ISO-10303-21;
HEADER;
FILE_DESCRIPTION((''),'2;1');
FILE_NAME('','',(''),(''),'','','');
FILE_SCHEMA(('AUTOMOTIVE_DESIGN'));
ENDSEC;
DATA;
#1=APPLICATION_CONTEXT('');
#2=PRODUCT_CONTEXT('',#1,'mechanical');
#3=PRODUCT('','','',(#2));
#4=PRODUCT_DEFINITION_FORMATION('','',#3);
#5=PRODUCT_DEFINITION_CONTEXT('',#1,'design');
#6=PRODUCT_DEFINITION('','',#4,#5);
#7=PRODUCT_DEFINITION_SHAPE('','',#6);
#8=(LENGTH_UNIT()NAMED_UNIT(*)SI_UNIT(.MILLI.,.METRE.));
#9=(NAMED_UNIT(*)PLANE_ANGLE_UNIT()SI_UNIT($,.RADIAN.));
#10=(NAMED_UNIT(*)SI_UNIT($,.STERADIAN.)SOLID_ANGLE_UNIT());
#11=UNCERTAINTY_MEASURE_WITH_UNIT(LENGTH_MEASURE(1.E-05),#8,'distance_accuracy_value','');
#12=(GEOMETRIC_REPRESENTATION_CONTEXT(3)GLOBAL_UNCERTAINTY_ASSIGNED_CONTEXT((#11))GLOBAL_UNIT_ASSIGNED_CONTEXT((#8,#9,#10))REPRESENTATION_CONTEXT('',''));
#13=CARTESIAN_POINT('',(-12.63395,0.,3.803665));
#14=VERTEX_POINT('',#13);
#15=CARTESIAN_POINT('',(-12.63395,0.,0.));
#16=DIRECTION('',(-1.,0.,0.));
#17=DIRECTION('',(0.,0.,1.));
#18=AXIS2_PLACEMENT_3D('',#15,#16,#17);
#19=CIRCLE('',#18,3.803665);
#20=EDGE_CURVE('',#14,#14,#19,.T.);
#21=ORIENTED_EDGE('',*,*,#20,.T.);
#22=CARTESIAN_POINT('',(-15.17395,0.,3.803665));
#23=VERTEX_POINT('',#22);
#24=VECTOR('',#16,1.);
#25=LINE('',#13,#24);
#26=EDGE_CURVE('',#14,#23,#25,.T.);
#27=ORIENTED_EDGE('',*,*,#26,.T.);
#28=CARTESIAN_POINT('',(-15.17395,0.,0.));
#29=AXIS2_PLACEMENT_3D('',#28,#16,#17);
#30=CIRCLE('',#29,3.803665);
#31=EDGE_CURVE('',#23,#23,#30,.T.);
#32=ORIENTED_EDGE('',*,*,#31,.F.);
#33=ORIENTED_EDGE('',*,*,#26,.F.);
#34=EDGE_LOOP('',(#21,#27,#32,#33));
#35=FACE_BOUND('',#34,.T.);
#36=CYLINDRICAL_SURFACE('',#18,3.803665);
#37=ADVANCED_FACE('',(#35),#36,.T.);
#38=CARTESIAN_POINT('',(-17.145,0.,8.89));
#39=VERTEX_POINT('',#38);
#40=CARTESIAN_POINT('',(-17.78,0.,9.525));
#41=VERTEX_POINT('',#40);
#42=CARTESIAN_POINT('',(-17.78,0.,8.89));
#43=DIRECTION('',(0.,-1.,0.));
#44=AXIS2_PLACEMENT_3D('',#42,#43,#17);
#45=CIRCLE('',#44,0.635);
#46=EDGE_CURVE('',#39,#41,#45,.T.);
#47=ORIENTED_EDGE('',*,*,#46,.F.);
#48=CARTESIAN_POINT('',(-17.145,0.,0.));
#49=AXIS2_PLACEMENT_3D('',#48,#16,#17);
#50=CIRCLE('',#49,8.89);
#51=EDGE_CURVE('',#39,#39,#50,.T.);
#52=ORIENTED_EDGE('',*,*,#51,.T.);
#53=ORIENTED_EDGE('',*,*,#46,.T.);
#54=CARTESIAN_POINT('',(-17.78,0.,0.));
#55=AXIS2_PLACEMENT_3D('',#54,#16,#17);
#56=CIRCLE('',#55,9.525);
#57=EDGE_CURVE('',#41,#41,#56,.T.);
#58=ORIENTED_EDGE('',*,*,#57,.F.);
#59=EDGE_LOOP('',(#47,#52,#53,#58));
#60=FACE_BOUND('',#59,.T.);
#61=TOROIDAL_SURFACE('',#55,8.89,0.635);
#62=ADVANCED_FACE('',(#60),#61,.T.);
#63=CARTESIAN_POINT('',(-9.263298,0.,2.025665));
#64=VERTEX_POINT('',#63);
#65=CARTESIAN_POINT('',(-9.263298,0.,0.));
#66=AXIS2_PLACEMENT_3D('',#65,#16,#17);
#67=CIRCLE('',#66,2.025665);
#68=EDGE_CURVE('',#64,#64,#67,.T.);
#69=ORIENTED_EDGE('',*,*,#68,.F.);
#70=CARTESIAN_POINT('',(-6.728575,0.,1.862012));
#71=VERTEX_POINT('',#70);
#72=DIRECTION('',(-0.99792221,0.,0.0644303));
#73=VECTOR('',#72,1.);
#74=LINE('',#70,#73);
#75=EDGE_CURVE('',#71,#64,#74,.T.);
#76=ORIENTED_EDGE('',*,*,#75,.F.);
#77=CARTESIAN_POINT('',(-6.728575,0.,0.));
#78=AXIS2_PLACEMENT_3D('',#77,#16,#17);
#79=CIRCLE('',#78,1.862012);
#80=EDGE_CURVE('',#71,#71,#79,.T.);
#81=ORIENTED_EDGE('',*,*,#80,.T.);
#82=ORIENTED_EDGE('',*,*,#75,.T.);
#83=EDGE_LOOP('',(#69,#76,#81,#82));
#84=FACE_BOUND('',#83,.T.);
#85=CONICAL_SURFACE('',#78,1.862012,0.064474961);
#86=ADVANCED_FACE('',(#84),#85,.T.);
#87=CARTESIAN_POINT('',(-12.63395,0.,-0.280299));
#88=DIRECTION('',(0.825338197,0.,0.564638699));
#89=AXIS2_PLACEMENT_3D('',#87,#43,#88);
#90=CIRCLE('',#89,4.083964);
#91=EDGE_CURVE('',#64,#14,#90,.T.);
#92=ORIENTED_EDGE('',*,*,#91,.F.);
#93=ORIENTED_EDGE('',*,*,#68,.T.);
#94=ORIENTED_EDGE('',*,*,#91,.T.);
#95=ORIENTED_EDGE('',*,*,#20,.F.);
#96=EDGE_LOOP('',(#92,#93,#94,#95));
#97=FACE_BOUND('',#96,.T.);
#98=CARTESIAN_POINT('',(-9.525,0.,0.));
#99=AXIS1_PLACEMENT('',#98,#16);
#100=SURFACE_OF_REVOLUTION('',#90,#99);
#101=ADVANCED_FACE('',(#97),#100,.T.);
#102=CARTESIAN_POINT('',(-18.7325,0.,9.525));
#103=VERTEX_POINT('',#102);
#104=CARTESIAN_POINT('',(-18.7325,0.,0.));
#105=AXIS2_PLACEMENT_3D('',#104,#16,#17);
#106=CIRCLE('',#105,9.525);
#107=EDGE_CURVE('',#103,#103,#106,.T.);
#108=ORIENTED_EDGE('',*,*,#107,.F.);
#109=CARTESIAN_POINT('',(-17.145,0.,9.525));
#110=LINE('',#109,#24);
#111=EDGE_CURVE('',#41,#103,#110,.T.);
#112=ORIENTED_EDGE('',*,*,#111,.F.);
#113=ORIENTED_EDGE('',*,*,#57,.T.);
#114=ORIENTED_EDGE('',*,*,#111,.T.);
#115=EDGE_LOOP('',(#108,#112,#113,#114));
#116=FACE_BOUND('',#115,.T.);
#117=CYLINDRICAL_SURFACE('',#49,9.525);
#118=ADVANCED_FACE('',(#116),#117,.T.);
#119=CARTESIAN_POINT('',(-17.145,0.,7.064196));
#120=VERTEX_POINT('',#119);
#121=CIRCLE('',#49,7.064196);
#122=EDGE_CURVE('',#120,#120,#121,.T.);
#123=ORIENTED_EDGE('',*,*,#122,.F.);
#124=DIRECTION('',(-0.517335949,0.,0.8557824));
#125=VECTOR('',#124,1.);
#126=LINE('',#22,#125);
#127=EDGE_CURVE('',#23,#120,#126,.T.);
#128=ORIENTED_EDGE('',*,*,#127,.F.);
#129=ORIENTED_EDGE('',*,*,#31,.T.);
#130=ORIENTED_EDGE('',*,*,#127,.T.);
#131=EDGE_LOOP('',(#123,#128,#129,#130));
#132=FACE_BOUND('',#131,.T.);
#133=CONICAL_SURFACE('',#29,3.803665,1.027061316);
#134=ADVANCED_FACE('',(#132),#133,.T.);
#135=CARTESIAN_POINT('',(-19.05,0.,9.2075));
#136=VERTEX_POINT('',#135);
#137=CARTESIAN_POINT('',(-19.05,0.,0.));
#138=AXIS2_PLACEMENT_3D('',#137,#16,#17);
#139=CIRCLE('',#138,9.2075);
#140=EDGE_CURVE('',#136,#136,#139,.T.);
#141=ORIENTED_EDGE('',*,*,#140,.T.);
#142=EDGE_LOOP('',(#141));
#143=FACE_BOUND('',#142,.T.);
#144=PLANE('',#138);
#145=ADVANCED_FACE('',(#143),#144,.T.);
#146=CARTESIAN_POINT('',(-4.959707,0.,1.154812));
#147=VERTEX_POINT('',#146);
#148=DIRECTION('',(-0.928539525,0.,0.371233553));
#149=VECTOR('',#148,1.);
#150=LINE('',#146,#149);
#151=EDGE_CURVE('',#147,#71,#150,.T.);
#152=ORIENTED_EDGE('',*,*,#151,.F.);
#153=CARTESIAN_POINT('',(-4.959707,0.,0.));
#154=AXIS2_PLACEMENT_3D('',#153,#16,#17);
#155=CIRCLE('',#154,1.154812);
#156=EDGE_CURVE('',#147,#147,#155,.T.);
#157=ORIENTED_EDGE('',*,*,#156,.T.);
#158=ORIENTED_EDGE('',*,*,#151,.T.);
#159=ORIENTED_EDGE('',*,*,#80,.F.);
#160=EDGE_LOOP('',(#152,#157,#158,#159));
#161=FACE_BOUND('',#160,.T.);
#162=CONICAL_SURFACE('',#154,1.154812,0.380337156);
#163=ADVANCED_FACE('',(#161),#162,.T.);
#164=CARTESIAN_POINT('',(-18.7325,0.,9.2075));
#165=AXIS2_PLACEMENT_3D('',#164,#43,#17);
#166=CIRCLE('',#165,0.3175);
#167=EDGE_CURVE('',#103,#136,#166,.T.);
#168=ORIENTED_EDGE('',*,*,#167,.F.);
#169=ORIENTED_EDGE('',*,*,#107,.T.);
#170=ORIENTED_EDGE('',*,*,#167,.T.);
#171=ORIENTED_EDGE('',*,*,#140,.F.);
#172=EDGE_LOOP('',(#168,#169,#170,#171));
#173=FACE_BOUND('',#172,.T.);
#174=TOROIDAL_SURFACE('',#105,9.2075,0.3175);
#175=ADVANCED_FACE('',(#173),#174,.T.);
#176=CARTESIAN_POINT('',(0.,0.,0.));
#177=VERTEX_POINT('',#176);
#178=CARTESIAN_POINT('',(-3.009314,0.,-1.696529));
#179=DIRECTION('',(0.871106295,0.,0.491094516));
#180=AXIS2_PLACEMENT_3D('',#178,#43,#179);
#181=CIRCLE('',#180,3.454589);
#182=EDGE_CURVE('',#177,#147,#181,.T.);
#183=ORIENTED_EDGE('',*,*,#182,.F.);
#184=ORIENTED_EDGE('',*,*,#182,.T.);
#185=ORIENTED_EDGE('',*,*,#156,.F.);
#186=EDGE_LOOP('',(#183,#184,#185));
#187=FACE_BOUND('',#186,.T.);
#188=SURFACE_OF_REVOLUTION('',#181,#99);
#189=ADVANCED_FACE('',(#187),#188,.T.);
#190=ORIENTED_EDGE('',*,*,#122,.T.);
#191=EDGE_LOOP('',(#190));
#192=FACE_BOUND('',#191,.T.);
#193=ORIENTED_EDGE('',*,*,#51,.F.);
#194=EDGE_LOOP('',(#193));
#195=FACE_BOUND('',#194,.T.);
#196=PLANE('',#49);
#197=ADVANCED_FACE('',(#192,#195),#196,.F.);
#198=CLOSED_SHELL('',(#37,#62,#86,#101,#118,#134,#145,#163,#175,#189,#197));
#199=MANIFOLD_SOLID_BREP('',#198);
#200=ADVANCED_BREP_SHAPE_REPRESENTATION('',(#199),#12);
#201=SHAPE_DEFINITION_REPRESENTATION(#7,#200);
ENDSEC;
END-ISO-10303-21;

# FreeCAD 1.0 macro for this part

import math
import FreeCAD as App
import Part
import Sketcher
from FreeCAD import Vector
Q = App.Units.Quantity


def edges_at(feature, points):
    """Names of the edges that pass closest to the given points."""
    edges = feature.Shape.Edges
    near = lambda p: min(range(len(edges)), key=lambda i: edges[i].distToShape(Part.Vertex(*p))[0])
    return sorted({f"Edge{near(p) + 1}" for p in points})

doc = App.newDocument("Part")
params = doc.addObject("Spreadsheet::Sheet", "Params")
for row, (alias, value) in enumerate([
    ("sketch1_width", "0.1 in"),
    ("sketch1_length", "0.1 in"),
    ("sketch1_width2", "0.75 in"),
    ("sketch1_length2", "0.15 in"),
    ("sketch1_width3", "0.075 in"),
    ("revolution_angle", "360 deg"),
    ("fillet_radius", "0.025 in"),
    ("fillet2_radius", "0.0125 in"),
], start=1):
    params.set(f"A{row}", alias)
    params.set(f"B{row}", "=" + value)
    params.setAlias(f"B{row}", alias)

body = doc.addObject("PartDesign::Body", "Body")

# Sketch on XZ plane
sketch1 = doc.addObject("Sketcher::SketchObject", "Sketch")
body.addObject(sketch1)
sketch1.AttachmentSupport = (doc.XZ_Plane, [""])
sketch1.MapMode = "FlatFace"
sketch1.addGeometry([
    Part.LineSegment(Vector(-19.1, 0, 0), Vector(0, 0, 0)),  # 0
    Part.ArcOfCircle(Part.Circle(Vector(-3, -1.7, 0), Vector(0, 0, 1), 3.5), math.radians(29), math.radians(124)),  # 1
    Part.LineSegment(Vector(-5, 1.2, 0), Vector(-6.7, 1.9, 0)),  # 2
    Part.LineSegment(Vector(-6.7, 1.9, 0), Vector(-9.3, 2, 0)),  # 3
    Part.ArcOfCircle(Part.Circle(Vector(-12.6, -0.3, 0), Vector(0, 0, 1), 4.1), math.radians(34), math.radians(90)),  # 4
    Part.LineSegment(Vector(-12.6, 3.8, 0), Vector(-15.2, 3.8, 0)),  # 5
    Part.LineSegment(Vector(-15.2, 3.8, 0), Vector(-17.1, 7.1, 0)),  # 6
    Part.LineSegment(Vector(-17.1, 7.1, 0), Vector(-17.1, 9.5, 0)),  # 7
    Part.LineSegment(Vector(-17.1, 9.5, 0), Vector(-19.1, 9.5, 0)),  # 8
    Part.LineSegment(Vector(-19.1, 9.5, 0), Vector(-19.1, 0, 0)),  # 9
], False)
sketch1.addConstraint([
    Sketcher.Constraint("Coincident", 0, 2, 1, 1),
    Sketcher.Constraint("Coincident", 1, 2, 2, 1),
    Sketcher.Constraint("Coincident", 2, 2, 3, 1),
    Sketcher.Constraint("Coincident", 3, 2, 4, 1),
    Sketcher.Constraint("Tangent", 4, 2, 5, 1),
    Sketcher.Constraint("Coincident", 5, 2, 6, 1),
    Sketcher.Constraint("Coincident", 6, 2, 7, 1),
    Sketcher.Constraint("Coincident", 7, 2, 8, 1),
    Sketcher.Constraint("Coincident", 8, 2, 9, 1),
    Sketcher.Constraint("Coincident", 9, 2, 0, 1),
    Sketcher.Constraint("Horizontal", 0),
    Sketcher.Constraint("Horizontal", 5),
    Sketcher.Constraint("Vertical", 7),
    Sketcher.Constraint("Horizontal", 8),
    Sketcher.Constraint("Vertical", 9),
    Sketcher.Constraint("Coincident", 0, 2, -1, 1),
    Sketcher.Constraint("DistanceX", 5, 2, 5, 1, Q("0.1 in")),
    Sketcher.Constraint("Distance", 3, Q("0.1 in")),
    Sketcher.Constraint("DistanceX", 0, 1, 0, 2, Q("0.75 in")),
    Sketcher.Constraint("Distance", 6, Q("0.15 in")),
    Sketcher.Constraint("DistanceX", 8, 2, 8, 1, Q("0.075 in")),
    Sketcher.Constraint("DistanceY", 9, 2, 9, 1, Q("0.375 in")),
    Sketcher.Constraint("DistanceY", 3, 2, 4, 2, Q("0.07 in")),
    Sketcher.Constraint("Distance", 2, Q("0.075 in")),
    Sketcher.Constraint("Radius", 1, 3.454589),
    Sketcher.Constraint("Radius", 4, 4.083964),
    Sketcher.Constraint("DistanceY", 1, 3, 2, 2, Q("0.1401001 in")),
    Sketcher.Constraint("DistanceY", 4, 3, -1, 1, 0.280299),
    Sketcher.Constraint("DistanceX", 3, 2, -1, 1, 9.263298),
    Sketcher.Constraint("DistanceY", 1, 2, 2, 2, 0.7072),
])
sketch1.setExpression("Constraints[16]", "Params.sketch1_width")
sketch1.setExpression("Constraints[17]", "Params.sketch1_length")
sketch1.setExpression("Constraints[18]", "Params.sketch1_width2")
sketch1.setExpression("Constraints[19]", "Params.sketch1_length2")
sketch1.setExpression("Constraints[20]", "Params.sketch1_width3")
revolution = doc.addObject("PartDesign::Revolution", "Revolution")
body.addObject(revolution)
revolution.Profile = sketch1
revolution.ReferenceAxis = (sketch1, ["H_Axis"])
revolution.setExpression("Angle", "Params.revolution_angle")
doc.recompute()

fillet = doc.addObject("PartDesign::Fillet", "Fillet")
body.addObject(fillet)
fillet.Base = (revolution, edges_at(revolution, [(-17.145, 0, -9.525)]))
fillet.setExpression("Radius", "Params.fillet_radius")
doc.recompute()

fillet2 = doc.addObject("PartDesign::Fillet", "Fillet001")
body.addObject(fillet2)
fillet2.Base = (fillet, edges_at(fillet, [(-19.05, 0, -9.525)]))
fillet2.setExpression("Radius", "Params.fillet2_radius")

doc.recompute()
